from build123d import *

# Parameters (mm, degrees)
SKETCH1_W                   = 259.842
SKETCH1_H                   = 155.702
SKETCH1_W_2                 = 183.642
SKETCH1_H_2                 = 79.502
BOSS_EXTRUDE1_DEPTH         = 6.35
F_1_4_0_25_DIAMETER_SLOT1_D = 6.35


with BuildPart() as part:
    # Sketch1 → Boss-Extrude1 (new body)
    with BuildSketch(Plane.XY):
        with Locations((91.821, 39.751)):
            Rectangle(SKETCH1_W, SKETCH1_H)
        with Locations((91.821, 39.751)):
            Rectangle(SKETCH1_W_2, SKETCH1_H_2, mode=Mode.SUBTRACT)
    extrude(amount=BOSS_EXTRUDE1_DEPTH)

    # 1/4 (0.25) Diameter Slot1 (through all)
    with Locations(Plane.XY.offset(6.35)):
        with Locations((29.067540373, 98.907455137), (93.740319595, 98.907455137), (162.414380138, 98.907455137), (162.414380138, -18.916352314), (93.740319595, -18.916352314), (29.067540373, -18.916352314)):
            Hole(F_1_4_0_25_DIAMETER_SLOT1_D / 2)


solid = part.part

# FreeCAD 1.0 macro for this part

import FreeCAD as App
import Part
import Sketcher
from FreeCAD import Vector
Q = App.Units.Quantity


def add_polygon(sketch, points):
    """Adds a closed chain of lines whose ends are joined by coincident constraints."""
    first, n = sketch.GeometryCount, len(points)
    for a, b in zip(points, points[1:] + points[:1]):
        sketch.addGeometry(Part.LineSegment(App.Vector(*a, 0), App.Vector(*b, 0)), False)
    for i in range(n):
        sketch.addConstraint(Sketcher.Constraint("Coincident", first + i, 2, first + (i + 1) % n, 1))

doc = App.newDocument("Part")
body = doc.addObject("PartDesign::Body", "Body")

# Sketch on XY plane
sketch1 = body.newObject("Sketcher::SketchObject", "Sketch")
sketch1.AttachmentSupport = (doc.getObject("XY_Plane"), [""])
sketch1.MapMode = "FlatFace"
add_polygon(sketch1, [(-38.1, 117.602), (-38.1, -38.1), (221.742, -38.1), (221.742, 117.602)])  # lines 0-3
add_polygon(sketch1, [(183.642, 0), (0, 0), (0, 79.502), (183.642, 79.502)])  # lines 4-7
sketch1.addConstraint([
    Sketcher.Constraint("Vertical", 0),
    Sketcher.Constraint("Horizontal", 1),
    Sketcher.Constraint("Vertical", 2),
    Sketcher.Constraint("Horizontal", 3),
    Sketcher.Constraint("Horizontal", 4),
    Sketcher.Constraint("Vertical", 5),
    Sketcher.Constraint("Horizontal", 6),
    Sketcher.Constraint("Vertical", 7),
    Sketcher.Constraint("Coincident", 4, 2, -1, 1),
    Sketcher.Constraint("DistanceX", 1, 1, 1, 2, Q("10.23 in")),
    Sketcher.Constraint("DistanceX", 4, 2, 4, 1, Q("7.23 in")),
    Sketcher.Constraint("DistanceY", 0, 2, 0, 1, Q("6.13 in")),
    Sketcher.Constraint("DistanceY", 5, 1, 5, 2, Q("3.13 in")),
    Sketcher.Constraint("DistanceX", 0, 2, -1, 1, Q("1.5 in")),
    Sketcher.Constraint("DistanceY", 0, 2, -1, 1, Q("1.5 in")),
])
pad1 = body.newObject("PartDesign::Pad", "Pad")
pad1.Profile = sketch1
pad1.Length = Q("0.25 in")

# Sketch on XY plane
sketch2 = body.newObject("Sketcher::SketchObject", "Sketch001")
sketch2.AttachmentSupport = (doc.getObject("XY_Plane"), [""])
sketch2.MapMode = "FlatFace"
sketch2.AttachmentOffset = App.Placement(Vector(0, 0, 0.25 * 25.4), App.Rotation())
sketch2.addGeometry([
    Part.Circle(Vector(29.06754, 98.907455, 0), Vector(0, 0, 1), 3.175),  # 0
    Part.Circle(Vector(93.74032, 98.907455, 0), Vector(0, 0, 1), 3.175),  # 1
    Part.Circle(Vector(162.41438, 98.907455, 0), Vector(0, 0, 1), 3.175),  # 2
    Part.Circle(Vector(162.41438, -18.916352, 0), Vector(0, 0, 1), 3.175),  # 3
    Part.Circle(Vector(93.74032, -18.916352, 0), Vector(0, 0, 1), 3.175),  # 4
    Part.Circle(Vector(29.06754, -18.916352, 0), Vector(0, 0, 1), 3.175),  # 5
], False)
sketch2.addConstraint([
    Sketcher.Constraint("Equal", 0, 1),
    Sketcher.Constraint("Equal", 1, 2),
    Sketcher.Constraint("Equal", 2, 3),
    Sketcher.Constraint("Equal", 3, 4),
    Sketcher.Constraint("Equal", 4, 5),
    Sketcher.Constraint("Horizontal", 0, 3, 1, 3),
    Sketcher.Constraint("Horizontal", 1, 3, 2, 3),
    Sketcher.Constraint("Horizontal", 3, 3, 4, 3),
    Sketcher.Constraint("Horizontal", 4, 3, 5, 3),
    Sketcher.Constraint("Vertical", 2, 3, 3, 3),
    Sketcher.Constraint("Vertical", 1, 3, 4, 3),
    Sketcher.Constraint("Vertical", 0, 3, 5, 3),
    Sketcher.Constraint("Diameter", 0, Q("0.25 in")),
    Sketcher.Constraint("DistanceX", -1, 1, 0, 3, 29.06754),
    Sketcher.Constraint("DistanceX", -1, 1, 1, 3, 93.74032),
    Sketcher.Constraint("DistanceX", -1, 1, 2, 3, 162.41438),
    Sketcher.Constraint("DistanceY", -1, 1, 0, 3, 98.907455),
    Sketcher.Constraint("DistanceY", 3, 3, -1, 1, 18.916352),
])
doc.recompute()
hole = body.newObject("PartDesign::Hole", "Hole")
hole.Profile = sketch2
hole.ThreadType = "None"
hole.Diameter = Q("0.25 in")
hole.DepthType = "ThroughAll"

doc.recompute()
